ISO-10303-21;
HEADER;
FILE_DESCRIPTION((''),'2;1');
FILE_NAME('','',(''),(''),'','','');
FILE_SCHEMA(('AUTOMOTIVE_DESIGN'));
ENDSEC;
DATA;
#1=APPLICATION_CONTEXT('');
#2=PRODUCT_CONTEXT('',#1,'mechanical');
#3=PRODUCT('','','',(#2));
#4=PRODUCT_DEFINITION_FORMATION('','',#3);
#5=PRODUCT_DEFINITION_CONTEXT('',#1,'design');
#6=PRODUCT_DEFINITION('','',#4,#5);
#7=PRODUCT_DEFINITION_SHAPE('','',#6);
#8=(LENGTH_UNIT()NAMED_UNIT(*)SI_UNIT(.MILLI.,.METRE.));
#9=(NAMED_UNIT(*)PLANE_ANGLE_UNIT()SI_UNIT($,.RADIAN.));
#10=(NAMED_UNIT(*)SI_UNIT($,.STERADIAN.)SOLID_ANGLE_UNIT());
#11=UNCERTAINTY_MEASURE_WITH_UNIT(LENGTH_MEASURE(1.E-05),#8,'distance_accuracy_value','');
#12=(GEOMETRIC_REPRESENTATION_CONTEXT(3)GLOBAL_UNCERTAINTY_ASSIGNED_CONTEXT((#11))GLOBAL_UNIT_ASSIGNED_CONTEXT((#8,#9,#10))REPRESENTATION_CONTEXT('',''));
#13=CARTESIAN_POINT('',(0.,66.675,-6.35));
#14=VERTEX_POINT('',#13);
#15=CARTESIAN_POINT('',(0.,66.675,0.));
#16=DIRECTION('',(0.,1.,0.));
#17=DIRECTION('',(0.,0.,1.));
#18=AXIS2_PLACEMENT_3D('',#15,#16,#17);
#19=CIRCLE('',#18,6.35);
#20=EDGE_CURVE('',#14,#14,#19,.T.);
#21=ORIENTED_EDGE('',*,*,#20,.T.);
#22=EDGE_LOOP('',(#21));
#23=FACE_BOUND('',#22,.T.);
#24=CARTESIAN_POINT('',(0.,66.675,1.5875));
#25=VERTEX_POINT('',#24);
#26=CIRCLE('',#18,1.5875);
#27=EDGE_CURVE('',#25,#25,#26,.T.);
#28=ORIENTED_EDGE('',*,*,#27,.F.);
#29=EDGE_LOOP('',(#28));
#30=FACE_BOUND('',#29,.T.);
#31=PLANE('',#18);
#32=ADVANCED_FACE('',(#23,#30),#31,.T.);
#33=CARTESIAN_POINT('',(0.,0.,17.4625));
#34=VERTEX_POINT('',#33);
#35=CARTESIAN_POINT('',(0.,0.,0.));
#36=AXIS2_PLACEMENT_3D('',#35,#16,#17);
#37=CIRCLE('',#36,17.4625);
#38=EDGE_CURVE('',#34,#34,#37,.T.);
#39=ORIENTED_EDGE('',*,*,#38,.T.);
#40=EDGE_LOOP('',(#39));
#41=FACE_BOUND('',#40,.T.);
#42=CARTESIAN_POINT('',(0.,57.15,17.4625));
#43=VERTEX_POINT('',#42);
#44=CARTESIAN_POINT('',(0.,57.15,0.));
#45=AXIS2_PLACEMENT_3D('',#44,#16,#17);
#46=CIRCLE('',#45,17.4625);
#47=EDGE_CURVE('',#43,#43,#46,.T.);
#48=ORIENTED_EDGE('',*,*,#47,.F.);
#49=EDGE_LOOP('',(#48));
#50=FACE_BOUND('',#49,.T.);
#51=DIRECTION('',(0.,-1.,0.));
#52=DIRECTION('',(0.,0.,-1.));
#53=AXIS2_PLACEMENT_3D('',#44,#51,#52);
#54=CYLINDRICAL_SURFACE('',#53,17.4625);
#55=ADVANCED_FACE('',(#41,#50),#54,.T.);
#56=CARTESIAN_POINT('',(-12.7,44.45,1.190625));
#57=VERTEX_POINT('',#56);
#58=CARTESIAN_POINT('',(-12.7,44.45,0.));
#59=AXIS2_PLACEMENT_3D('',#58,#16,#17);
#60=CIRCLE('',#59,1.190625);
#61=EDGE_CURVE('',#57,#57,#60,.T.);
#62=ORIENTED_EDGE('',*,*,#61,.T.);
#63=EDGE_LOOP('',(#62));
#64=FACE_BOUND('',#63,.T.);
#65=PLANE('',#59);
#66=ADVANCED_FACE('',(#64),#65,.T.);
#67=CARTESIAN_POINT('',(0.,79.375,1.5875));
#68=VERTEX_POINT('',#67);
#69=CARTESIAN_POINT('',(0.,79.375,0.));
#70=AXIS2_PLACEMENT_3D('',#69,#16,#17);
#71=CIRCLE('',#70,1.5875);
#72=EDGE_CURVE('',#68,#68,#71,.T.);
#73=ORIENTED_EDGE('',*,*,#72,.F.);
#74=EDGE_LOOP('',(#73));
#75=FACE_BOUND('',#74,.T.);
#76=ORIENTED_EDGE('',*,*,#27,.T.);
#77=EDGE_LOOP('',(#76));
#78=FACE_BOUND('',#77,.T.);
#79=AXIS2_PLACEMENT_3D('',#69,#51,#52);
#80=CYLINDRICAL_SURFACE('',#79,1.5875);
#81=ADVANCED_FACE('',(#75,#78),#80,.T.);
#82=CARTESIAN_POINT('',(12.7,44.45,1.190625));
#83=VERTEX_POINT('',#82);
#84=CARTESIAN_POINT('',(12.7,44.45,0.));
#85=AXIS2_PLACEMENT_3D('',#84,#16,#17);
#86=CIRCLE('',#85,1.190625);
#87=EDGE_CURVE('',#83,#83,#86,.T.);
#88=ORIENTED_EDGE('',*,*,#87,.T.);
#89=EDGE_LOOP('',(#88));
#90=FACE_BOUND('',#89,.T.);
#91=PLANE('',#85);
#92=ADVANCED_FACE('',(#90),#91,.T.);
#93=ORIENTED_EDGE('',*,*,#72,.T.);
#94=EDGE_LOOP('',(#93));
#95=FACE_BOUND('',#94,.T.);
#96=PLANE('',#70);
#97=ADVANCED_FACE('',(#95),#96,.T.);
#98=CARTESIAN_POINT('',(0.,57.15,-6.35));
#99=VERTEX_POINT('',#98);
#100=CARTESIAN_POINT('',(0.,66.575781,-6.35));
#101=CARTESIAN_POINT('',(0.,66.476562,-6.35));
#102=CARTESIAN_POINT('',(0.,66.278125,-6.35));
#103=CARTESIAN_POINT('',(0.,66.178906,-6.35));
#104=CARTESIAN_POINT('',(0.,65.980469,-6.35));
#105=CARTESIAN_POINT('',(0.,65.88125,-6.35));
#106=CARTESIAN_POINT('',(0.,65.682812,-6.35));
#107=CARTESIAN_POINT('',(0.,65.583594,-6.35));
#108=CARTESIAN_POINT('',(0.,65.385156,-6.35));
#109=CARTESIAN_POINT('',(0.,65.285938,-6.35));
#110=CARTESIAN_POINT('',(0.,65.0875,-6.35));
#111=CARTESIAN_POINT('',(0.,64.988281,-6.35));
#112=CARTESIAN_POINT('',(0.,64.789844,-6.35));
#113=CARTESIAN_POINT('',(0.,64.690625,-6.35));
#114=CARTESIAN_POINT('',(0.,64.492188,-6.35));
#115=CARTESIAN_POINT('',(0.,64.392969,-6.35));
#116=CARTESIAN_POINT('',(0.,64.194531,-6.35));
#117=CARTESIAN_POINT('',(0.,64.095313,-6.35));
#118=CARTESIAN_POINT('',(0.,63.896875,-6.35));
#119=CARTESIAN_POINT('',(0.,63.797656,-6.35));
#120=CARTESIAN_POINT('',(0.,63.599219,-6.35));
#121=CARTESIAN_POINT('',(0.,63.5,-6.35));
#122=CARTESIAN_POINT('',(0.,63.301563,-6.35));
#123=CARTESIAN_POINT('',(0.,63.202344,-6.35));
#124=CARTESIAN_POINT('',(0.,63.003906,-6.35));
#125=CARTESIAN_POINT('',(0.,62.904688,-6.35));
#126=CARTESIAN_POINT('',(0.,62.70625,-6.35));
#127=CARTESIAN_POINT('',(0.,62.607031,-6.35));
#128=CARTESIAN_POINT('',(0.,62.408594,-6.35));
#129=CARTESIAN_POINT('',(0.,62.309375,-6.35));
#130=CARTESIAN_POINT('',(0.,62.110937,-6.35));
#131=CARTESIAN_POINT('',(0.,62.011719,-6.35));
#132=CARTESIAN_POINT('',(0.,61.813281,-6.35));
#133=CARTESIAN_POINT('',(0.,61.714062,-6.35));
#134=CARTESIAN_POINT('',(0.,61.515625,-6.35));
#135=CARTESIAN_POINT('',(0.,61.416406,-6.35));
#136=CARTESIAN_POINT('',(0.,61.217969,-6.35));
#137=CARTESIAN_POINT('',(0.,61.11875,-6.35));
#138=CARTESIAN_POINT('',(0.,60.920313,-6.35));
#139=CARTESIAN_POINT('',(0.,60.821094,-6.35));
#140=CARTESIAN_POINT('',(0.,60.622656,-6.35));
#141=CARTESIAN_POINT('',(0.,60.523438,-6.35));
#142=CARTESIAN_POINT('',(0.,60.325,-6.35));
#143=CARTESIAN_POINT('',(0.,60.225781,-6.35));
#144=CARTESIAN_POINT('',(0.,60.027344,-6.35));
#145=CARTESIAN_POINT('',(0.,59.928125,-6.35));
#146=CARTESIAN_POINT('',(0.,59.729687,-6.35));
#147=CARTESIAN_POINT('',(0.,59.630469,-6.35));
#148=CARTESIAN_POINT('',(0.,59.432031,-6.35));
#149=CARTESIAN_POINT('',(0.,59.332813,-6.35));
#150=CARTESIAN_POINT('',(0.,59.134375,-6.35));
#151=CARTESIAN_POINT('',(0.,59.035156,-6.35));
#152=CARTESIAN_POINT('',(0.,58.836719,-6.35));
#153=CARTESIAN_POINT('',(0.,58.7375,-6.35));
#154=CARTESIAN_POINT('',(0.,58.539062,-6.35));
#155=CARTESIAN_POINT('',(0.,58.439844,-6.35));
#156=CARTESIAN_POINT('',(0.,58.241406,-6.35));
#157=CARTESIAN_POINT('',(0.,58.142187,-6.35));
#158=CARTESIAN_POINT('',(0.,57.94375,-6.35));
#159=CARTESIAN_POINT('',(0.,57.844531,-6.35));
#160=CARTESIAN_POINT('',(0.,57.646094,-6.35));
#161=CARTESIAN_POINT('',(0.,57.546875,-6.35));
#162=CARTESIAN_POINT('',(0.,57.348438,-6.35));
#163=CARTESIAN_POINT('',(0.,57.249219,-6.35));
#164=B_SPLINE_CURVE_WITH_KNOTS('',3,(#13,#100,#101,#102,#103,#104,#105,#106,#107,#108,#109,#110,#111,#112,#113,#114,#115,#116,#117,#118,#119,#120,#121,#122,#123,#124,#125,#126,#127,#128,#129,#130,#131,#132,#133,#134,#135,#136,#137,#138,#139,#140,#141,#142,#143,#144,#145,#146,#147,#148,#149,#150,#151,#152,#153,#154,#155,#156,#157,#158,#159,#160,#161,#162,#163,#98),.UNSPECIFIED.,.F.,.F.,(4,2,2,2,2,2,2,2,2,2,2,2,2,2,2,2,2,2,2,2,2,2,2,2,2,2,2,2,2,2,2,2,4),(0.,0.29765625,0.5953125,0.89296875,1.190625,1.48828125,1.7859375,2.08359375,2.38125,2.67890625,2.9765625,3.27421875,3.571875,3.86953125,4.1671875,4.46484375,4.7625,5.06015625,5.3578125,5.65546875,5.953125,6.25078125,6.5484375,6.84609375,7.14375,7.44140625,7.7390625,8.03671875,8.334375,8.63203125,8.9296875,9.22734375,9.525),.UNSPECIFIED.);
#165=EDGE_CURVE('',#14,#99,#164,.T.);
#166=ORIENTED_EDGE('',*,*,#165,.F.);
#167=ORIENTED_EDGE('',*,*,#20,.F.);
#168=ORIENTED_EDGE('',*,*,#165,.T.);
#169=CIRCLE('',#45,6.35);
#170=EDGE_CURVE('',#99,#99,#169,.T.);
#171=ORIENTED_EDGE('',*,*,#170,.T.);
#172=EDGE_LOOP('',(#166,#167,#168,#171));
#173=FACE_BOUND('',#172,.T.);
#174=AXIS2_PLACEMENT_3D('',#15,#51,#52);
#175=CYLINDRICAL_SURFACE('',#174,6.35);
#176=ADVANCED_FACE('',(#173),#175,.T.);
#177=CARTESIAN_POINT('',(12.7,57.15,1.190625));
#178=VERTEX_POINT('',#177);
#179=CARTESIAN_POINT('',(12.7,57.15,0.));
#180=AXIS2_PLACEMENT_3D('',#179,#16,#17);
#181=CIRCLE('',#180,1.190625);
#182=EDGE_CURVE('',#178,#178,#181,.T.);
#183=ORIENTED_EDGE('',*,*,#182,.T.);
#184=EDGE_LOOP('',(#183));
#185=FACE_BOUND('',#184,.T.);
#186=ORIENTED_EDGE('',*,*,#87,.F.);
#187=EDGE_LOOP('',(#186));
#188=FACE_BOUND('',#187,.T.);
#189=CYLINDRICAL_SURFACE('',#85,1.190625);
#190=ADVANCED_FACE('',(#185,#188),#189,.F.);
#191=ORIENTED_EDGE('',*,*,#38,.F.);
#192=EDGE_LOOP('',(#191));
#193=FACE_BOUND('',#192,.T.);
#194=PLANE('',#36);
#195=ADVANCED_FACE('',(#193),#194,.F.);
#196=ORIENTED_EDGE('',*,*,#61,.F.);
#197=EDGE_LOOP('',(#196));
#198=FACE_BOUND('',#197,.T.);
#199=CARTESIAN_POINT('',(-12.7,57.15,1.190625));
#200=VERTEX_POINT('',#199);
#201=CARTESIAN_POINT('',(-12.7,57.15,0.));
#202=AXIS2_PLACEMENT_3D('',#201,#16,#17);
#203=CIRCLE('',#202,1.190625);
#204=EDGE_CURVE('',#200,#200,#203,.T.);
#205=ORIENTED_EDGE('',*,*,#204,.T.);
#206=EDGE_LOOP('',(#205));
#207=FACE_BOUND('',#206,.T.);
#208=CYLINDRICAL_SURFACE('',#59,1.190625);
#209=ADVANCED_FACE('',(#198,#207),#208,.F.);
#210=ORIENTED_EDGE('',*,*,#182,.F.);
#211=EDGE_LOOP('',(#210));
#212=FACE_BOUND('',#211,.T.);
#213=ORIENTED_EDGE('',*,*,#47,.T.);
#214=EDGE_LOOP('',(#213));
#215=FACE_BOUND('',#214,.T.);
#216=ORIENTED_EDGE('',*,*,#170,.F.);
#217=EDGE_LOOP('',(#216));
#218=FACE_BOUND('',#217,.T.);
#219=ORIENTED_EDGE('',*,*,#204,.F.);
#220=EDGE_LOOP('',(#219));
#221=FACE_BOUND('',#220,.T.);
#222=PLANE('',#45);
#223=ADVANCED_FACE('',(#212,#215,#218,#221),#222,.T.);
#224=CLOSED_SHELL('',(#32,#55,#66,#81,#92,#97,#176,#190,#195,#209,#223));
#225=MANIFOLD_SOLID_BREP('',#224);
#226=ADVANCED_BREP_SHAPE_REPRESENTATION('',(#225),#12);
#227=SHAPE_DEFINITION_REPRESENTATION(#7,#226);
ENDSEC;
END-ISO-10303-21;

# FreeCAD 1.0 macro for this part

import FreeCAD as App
import Part
import Sketcher

V = App.Vector
Q = App.Units.Quantity

doc = App.newDocument("Part")
body = doc.addObject("PartDesign::Body", "Body")

# Sketch on XZ plane
sketch1 = body.newObject("Sketcher::SketchObject", "Sketch")
sketch1.AttachmentSupport = (doc.getObject("XZ_Plane"), [""])
sketch1.MapMode = "FlatFace"
sketch1.addGeometry(Part.Circle(V(0, 0, 0), V(0, 0, 1), 17), False)
sketch1.addConstraint(Sketcher.Constraint("Coincident", 0, 3, -1, 1))
sketch1.addConstraint(Sketcher.Constraint("Diameter", 0, Q("1.375 in")))
pad1 = body.newObject("PartDesign::Pad", "Pad")
pad1.Profile = sketch1
pad1.Length = Q("2.25 in")
pad1.Reversed = True

# Sketch on XZ plane
sketch2 = body.newObject("Sketcher::SketchObject", "Sketch001")
sketch2.AttachmentSupport = (doc.getObject("XZ_Plane"), [""])
sketch2.MapMode = "FlatFace"
sketch2.AttachmentOffset = App.Placement(V(0, 0, -2.25 * 25.4), App.Rotation())
sketch2.addGeometry(Part.Circle(V(0, 0, 0), V(0, 0, 1), 6), False)
sketch2.addConstraint(Sketcher.Constraint("Coincident", 0, 3, -1, 1))
sketch2.addConstraint(Sketcher.Constraint("Diameter", 0, Q("0.5 in")))
pad2 = body.newObject("PartDesign::Pad", "Pad001")
pad2.Profile = sketch2
pad2.Length = Q("0.375 in")
pad2.Reversed = True

# Sketch on XZ plane
sketch3 = body.newObject("Sketcher::SketchObject", "Sketch002")
sketch3.AttachmentSupport = (doc.getObject("XZ_Plane"), [""])
sketch3.MapMode = "FlatFace"
sketch3.AttachmentOffset = App.Placement(V(0, 0, -2.625 * 25.4), App.Rotation())
sketch3.addGeometry(Part.Circle(V(0, 0, 0), V(0, 0, 1), 1.6), False)
sketch3.addConstraint(Sketcher.Constraint("Coincident", 0, 3, -1, 1))
sketch3.addConstraint(Sketcher.Constraint("Diameter", 0, Q("0.125 in")))
pad3 = body.newObject("PartDesign::Pad", "Pad002")
pad3.Profile = sketch3
pad3.Length = Q("0.5 in")
pad3.Reversed = True

# Sketch on XZ plane
sketch4 = body.newObject("Sketcher::SketchObject", "Sketch003")
sketch4.AttachmentSupport = (doc.getObject("XZ_Plane"), [""])
sketch4.MapMode = "FlatFace"
sketch4.AttachmentOffset = App.Placement(V(0, 0, -2.25 * 25.4), App.Rotation())
sketch4.addGeometry(Part.Circle(V(12.7, 0, 0), V(0, 0, 1), 1.2), False)
sketch4.addGeometry(Part.Circle(V(-12.7, 0, 0), V(0, 0, 1), 1.2), False)
sketch4.addConstraint(Sketcher.Constraint("Equal", 0, 1))
sketch4.addConstraint(Sketcher.Constraint("Symmetric", 0, 3, 1, 3, -1, 1))
sketch4.addConstraint(Sketcher.Constraint("PointOnObject", 0, 3, -1))
sketch4.addConstraint(Sketcher.Constraint("Diameter", 0, Q("0.09375 in")))
sketch4.addConstraint(Sketcher.Constraint("DistanceX", 1, 3, 0, 3, Q("1 in")))
pocket1 = body.newObject("PartDesign::Pocket", "Pocket")
pocket1.Profile = sketch4
pocket1.Length = Q("0.5 in")
pocket1.Reversed = True

doc.recompute()
